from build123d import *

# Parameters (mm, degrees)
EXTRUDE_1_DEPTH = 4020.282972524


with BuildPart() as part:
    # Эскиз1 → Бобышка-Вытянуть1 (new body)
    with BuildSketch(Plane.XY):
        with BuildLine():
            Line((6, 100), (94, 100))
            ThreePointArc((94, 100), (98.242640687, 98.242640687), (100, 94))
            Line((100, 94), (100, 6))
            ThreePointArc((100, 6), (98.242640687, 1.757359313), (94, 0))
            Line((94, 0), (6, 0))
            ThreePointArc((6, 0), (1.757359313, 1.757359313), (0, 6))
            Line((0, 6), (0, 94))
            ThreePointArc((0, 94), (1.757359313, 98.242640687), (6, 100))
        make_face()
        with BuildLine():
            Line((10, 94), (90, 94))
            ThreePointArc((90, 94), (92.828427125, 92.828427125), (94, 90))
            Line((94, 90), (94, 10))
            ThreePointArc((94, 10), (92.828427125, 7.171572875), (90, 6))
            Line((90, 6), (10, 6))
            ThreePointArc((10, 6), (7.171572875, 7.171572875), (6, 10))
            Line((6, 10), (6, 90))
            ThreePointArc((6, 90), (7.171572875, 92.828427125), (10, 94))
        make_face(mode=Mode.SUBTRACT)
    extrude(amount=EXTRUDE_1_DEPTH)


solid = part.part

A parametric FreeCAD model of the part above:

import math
import FreeCAD as App
import Part
import Sketcher

doc = App.newDocument("Part")
body = doc.addObject("PartDesign::Body", "Body")

# Sketch on XY plane
sketch1 = body.newObject("Sketcher::SketchObject", "Sketch")
sketch1.AttachmentSupport = (doc.getObject("XY_Plane"), [""])
sketch1.MapMode = "FlatFace"
sketch1.addGeometry([
    Part.LineSegment(App.Vector(94, 100, 0), App.Vector(6, 100, 0)),  # 0
    Part.ArcOfCircle(Part.Circle(App.Vector(6, 94, 0), App.Vector(0, 0, 1), 6), math.radians(90), math.radians(180)),  # 1
    Part.LineSegment(App.Vector(0, 94, 0), App.Vector(0, 6, 0)),  # 2
    Part.ArcOfCircle(Part.Circle(App.Vector(6, 6, 0), App.Vector(0, 0, 1), 6), math.radians(180), math.radians(270)),  # 3
    Part.LineSegment(App.Vector(6, 0, 0), App.Vector(94, 0, 0)),  # 4
    Part.ArcOfCircle(Part.Circle(App.Vector(94, 6, 0), App.Vector(0, 0, 1), 6), math.radians(-90), math.radians(0)),  # 5
    Part.LineSegment(App.Vector(100, 6, 0), App.Vector(100, 94, 0)),  # 6
    Part.ArcOfCircle(Part.Circle(App.Vector(94, 94, 0), App.Vector(0, 0, 1), 6), math.radians(0), math.radians(90)),  # 7
    Part.LineSegment(App.Vector(10, 94, 0), App.Vector(90, 94, 0)),  # 8
    Part.ArcOfCircle(Part.Circle(App.Vector(90, 90, 0), App.Vector(0, 0, 1), 4), math.radians(0), math.radians(90)),  # 9
    Part.LineSegment(App.Vector(94, 90, 0), App.Vector(94, 10, 0)),  # 10
    Part.ArcOfCircle(Part.Circle(App.Vector(90, 10, 0), App.Vector(0, 0, 1), 4), math.radians(-90), math.radians(0)),  # 11
    Part.LineSegment(App.Vector(90, 6, 0), App.Vector(10, 6, 0)),  # 12
    Part.ArcOfCircle(Part.Circle(App.Vector(10, 10, 0), App.Vector(0, 0, 1), 4), math.radians(180), math.radians(270)),  # 13
    Part.LineSegment(App.Vector(6, 10, 0), App.Vector(6, 90, 0)),  # 14
    Part.ArcOfCircle(Part.Circle(App.Vector(10, 90, 0), App.Vector(0, 0, 1), 4), math.radians(90), math.radians(180)),  # 15
], False)
sketch1.addConstraint([
    Sketcher.Constraint("Tangent", 0, 2, 1, 1),
    Sketcher.Constraint("Tangent", 1, 2, 2, 1),
    Sketcher.Constraint("Tangent", 2, 2, 3, 1),
    Sketcher.Constraint("Tangent", 3, 2, 4, 1),
    Sketcher.Constraint("Tangent", 4, 2, 5, 1),
    Sketcher.Constraint("Tangent", 5, 2, 6, 1),
    Sketcher.Constraint("Tangent", 6, 2, 7, 1),
    Sketcher.Constraint("Tangent", 7, 2, 0, 1),
    Sketcher.Constraint("Tangent", 8, 2, 9, 2),
    Sketcher.Constraint("Tangent", 9, 1, 10, 1),
    Sketcher.Constraint("Tangent", 10, 2, 11, 2),
    Sketcher.Constraint("Tangent", 11, 1, 12, 1),
    Sketcher.Constraint("Tangent", 12, 2, 13, 2),
    Sketcher.Constraint("Tangent", 13, 1, 14, 1),
    Sketcher.Constraint("Tangent", 14, 2, 15, 2),
    Sketcher.Constraint("Tangent", 15, 1, 8, 1),
    Sketcher.Constraint("Horizontal", 0),
    Sketcher.Constraint("Vertical", 2),
    Sketcher.Constraint("Horizontal", 4),
    Sketcher.Constraint("Vertical", 6),
    Sketcher.Constraint("Horizontal", 8),
    Sketcher.Constraint("Vertical", 10),
    Sketcher.Constraint("Horizontal", 12),
    Sketcher.Constraint("Vertical", 14),
    Sketcher.Constraint("Equal", 1, 3),
    Sketcher.Constraint("Equal", 3, 5),
    Sketcher.Constraint("Equal", 5, 7),
    Sketcher.Constraint("Equal", 9, 11),
    Sketcher.Constraint("Equal", 11, 13),
    Sketcher.Constraint("Equal", 13, 15),
    Sketcher.Constraint("PointOnObject", 1, 2, -2),
    Sketcher.Constraint("PointOnObject", 3, 2, -1),
    Sketcher.Constraint("Horizontal", 6, 2, 8, 2),
    Sketcher.Constraint("Horizontal", 5, 2, 11, 1),
    Sketcher.Constraint("Vertical", 7, 2, 9, 1),
    Sketcher.Constraint("Vertical", 3, 2, 13, 1),
    Sketcher.Constraint("Equal", 4, 2),
    Sketcher.Constraint("Radius", 1, 6.0),
    Sketcher.Constraint("Radius", 9, 4.0),
    Sketcher.Constraint("DistanceX", 0, 2, 0, 1, 88.0),
])
pad1 = body.newObject("PartDesign::Pad", "Pad")
pad1.Profile = sketch1
pad1.Length = 4020.282973

doc.recompute()
